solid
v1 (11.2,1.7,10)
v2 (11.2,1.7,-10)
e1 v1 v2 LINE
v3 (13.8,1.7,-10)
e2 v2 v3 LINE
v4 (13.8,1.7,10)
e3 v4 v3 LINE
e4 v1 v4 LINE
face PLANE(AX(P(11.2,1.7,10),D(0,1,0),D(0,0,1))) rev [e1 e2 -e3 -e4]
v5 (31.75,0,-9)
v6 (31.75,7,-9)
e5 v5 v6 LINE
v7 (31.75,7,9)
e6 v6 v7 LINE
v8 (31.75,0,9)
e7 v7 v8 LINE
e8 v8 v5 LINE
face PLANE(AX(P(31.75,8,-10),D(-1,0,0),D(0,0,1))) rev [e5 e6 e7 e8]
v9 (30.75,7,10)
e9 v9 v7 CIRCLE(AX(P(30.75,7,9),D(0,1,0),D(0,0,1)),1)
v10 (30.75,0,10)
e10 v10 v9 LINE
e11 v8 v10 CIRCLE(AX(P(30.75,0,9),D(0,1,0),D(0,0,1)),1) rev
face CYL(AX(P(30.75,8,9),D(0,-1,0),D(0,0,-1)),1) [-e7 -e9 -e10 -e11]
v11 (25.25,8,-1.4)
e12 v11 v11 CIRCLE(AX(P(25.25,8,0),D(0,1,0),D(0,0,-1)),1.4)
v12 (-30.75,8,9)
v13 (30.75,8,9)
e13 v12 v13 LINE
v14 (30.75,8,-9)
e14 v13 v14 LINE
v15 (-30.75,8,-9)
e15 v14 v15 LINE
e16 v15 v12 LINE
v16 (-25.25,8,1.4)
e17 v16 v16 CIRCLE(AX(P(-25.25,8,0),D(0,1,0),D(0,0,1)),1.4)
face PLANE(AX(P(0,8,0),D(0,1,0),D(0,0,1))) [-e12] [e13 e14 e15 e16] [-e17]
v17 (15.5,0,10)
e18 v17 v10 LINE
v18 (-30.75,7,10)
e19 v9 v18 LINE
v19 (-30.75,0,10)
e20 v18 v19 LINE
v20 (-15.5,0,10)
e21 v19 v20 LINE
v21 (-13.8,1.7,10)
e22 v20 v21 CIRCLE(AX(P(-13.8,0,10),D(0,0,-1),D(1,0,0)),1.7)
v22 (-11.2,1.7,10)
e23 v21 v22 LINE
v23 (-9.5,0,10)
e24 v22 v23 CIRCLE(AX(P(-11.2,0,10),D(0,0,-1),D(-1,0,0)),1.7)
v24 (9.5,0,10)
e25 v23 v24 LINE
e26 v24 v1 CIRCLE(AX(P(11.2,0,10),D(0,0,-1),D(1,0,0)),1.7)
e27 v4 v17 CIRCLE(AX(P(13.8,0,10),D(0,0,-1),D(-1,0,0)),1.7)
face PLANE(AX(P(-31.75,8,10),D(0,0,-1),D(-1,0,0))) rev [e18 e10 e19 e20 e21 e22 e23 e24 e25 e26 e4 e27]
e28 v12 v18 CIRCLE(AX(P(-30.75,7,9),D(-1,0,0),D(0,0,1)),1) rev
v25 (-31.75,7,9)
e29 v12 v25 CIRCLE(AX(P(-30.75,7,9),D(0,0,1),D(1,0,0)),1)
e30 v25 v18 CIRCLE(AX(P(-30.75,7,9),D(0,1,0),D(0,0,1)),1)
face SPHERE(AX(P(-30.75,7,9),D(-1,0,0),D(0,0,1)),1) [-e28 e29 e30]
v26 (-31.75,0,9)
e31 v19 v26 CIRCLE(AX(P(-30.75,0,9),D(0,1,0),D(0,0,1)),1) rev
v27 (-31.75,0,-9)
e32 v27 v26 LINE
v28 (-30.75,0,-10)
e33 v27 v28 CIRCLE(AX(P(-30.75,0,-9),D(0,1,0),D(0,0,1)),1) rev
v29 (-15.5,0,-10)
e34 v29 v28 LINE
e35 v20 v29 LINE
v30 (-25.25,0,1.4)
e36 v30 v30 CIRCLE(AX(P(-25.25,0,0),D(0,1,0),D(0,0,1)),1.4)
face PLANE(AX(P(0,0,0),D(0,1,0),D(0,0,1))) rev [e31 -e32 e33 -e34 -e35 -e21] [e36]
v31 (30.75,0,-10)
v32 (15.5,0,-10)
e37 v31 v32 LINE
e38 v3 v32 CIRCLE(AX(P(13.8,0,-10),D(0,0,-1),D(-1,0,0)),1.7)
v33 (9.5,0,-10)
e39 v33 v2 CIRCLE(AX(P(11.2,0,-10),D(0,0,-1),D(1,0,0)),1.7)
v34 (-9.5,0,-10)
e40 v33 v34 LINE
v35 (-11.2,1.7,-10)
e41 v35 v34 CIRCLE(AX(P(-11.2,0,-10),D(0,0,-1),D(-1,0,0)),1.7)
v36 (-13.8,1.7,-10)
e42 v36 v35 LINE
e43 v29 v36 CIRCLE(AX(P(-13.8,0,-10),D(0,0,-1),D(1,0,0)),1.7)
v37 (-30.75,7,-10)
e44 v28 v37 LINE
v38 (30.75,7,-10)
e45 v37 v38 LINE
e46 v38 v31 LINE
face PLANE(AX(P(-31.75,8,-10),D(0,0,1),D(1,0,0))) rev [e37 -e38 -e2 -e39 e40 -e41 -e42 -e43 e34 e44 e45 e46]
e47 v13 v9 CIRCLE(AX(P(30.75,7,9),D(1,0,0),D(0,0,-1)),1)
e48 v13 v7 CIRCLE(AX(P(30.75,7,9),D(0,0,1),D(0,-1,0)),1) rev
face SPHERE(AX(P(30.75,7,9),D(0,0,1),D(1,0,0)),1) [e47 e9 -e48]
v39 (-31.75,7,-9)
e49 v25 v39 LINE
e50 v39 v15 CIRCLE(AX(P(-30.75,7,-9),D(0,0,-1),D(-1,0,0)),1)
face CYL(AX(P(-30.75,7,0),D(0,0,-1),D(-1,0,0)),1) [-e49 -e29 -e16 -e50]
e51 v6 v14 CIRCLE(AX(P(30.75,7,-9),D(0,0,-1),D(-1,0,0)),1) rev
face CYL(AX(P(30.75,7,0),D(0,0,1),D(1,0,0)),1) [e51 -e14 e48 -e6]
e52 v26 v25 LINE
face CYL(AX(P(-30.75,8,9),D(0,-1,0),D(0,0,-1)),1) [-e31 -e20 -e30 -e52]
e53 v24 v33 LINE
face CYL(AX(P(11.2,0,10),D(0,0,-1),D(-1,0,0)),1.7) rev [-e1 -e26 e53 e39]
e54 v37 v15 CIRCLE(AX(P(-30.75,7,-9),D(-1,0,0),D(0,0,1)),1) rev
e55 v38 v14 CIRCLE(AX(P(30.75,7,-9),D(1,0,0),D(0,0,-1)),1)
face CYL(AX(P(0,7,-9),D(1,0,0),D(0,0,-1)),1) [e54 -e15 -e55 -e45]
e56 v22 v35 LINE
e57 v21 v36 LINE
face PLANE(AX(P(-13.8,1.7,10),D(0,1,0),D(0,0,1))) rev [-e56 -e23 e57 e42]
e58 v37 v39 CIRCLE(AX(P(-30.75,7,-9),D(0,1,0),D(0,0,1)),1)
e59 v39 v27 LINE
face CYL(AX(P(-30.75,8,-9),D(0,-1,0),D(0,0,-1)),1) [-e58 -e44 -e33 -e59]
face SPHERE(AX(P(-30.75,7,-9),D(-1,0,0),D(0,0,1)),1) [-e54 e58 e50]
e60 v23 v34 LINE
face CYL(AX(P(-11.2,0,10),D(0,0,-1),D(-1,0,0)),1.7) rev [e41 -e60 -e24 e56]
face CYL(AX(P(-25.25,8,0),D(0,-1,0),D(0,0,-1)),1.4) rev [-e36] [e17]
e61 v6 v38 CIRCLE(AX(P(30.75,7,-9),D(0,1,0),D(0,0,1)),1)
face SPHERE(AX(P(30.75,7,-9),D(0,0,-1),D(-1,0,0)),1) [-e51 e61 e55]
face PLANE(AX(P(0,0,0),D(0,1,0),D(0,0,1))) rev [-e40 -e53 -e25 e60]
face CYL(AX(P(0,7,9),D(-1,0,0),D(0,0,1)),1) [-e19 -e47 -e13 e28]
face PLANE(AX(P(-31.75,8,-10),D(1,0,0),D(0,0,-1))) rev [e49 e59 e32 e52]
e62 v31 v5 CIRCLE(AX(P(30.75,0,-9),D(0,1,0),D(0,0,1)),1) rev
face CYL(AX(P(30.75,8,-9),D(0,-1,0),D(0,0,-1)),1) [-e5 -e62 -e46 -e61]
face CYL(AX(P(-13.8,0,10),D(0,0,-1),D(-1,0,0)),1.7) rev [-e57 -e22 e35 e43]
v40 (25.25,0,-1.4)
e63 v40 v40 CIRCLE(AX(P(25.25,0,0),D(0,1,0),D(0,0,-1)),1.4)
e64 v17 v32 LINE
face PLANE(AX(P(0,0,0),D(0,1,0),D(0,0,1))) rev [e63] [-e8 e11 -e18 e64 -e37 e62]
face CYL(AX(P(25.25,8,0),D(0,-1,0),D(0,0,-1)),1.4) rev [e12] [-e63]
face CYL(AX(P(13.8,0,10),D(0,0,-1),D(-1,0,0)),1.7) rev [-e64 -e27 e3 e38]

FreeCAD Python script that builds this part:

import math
import FreeCAD as App
import Part
import Sketcher
from FreeCAD import Vector
Q = App.Units.Quantity


def edges_at(feature, points):
    """Names of the edges that pass closest to the given points."""
    edges = feature.Shape.Edges
    near = lambda p: min(range(len(edges)), key=lambda i: edges[i].distToShape(Part.Vertex(*p))[0])
    return sorted({f"Edge{near(p) + 1}" for p in points})

doc = App.newDocument("Part")
body = doc.addObject("PartDesign::Body", "Body")

sketch1 = doc.addObject("Sketcher::SketchObject", "Sketch")
body.addObject(sketch1)
sketch1.AttachmentSupport = (doc.XZ_Plane, [""])
sketch1.MapMode = "FlatFace"
sketch1.addGeometry(Part.LineSegment(Vector(-31.8, -10, 0), Vector(-31.8, 10, 0)), False)
sketch1.addGeometry(Part.LineSegment(Vector(-31.8, 10, 0), Vector(31.8, 10, 0)), False)
sketch1.addGeometry(Part.LineSegment(Vector(31.8, 10, 0), Vector(31.8, -10, 0)), False)
sketch1.addGeometry(Part.LineSegment(Vector(31.8, -10, 0), Vector(-31.8, -10, 0)), False)
sketch1.addGeometry(Part.Circle(Vector(-25.2, 0, 0), Vector(0, 0, 1), 1.4), False)
sketch1.addGeometry(Part.Circle(Vector(25.2, 0, 0), Vector(0, 0, 1), 1.4), False)
sketch1.addConstraint(Sketcher.Constraint("Coincident", 0, 2, 1, 1))
sketch1.addConstraint(Sketcher.Constraint("Coincident", 1, 2, 2, 1))
sketch1.addConstraint(Sketcher.Constraint("Coincident", 2, 2, 3, 1))
sketch1.addConstraint(Sketcher.Constraint("Coincident", 3, 2, 0, 1))
sketch1.addConstraint(Sketcher.Constraint("Vertical", 0))
sketch1.addConstraint(Sketcher.Constraint("Horizontal", 1))
sketch1.addConstraint(Sketcher.Constraint("Vertical", 2))
sketch1.addConstraint(Sketcher.Constraint("Horizontal", 3))
sketch1.addConstraint(Sketcher.Constraint("Equal", 4, 5))
sketch1.addConstraint(Sketcher.Constraint("Symmetric", 4, 3, 5, 3, -1, 1))
sketch1.addConstraint(Sketcher.Constraint("Symmetric", 0, 2, 2, 2, -1, 1))
sketch1.addConstraint(Sketcher.Constraint("PointOnObject", 4, 3, -1))
sketch1.addConstraint(Sketcher.Constraint("Diameter", 4, Q("2.8 mm")))
sketch1.addConstraint(Sketcher.Constraint("DistanceY", 0, 1, 0, 2, Q("20 mm")))
sketch1.addConstraint(Sketcher.Constraint("DistanceX", 1, 1, 1, 2, Q("63.5 mm")))
sketch1.addConstraint(Sketcher.Constraint("DistanceX", 0, 2, 5, 3, Q("57 mm")))
pad1 = doc.addObject("PartDesign::Pad", "Pad")
body.addObject(pad1)
pad1.Profile = sketch1
pad1.Length = 8
pad1.Reversed = True

sketch2 = doc.addObject("Sketcher::SketchObject", "Sketch001")
body.addObject(sketch2)
sketch2.AttachmentSupport = (doc.XY_Plane, [""])
sketch2.MapMode = "FlatFace"
sketch2.AttachmentOffset = App.Placement(Vector(0, 0, -10), App.Rotation())
sketch2.addGeometry(Part.LineSegment(Vector(-9.5, 0, 0), Vector(-15.5, 0, 0)), False)
sketch2.addGeometry(Part.ArcOfCircle(Part.Circle(Vector(-13.8, 0, 0), Vector(0, 0, 1), 1.7), math.radians(90), math.radians(180)), False)
sketch2.addGeometry(Part.LineSegment(Vector(-13.8, 1.7, 0), Vector(-11.2, 1.7, 0)), False)
sketch2.addGeometry(Part.ArcOfCircle(Part.Circle(Vector(-11.2, 0, 0), Vector(0, 0, 1), 1.7), math.radians(0), math.radians(90)), False)
sketch2.addGeometry(Part.LineSegment(Vector(15.5, 0, 0), Vector(9.5, 0, 0)), False)
sketch2.addGeometry(Part.ArcOfCircle(Part.Circle(Vector(11.2, 0, 0), Vector(0, 0, 1), 1.7), math.radians(90), math.radians(180)), False)
sketch2.addGeometry(Part.LineSegment(Vector(11.2, 1.7, 0), Vector(13.8, 1.7, 0)), False)
sketch2.addGeometry(Part.ArcOfCircle(Part.Circle(Vector(13.8, 0, 0), Vector(0, 0, 1), 1.7), math.radians(0), math.radians(90)), False)
sketch2.addConstraint(Sketcher.Constraint("Coincident", 0, 2, 1, 2))
sketch2.addConstraint(Sketcher.Constraint("Tangent", 1, 1, 2, 1))
sketch2.addConstraint(Sketcher.Constraint("Tangent", 2, 2, 3, 2))
sketch2.addConstraint(Sketcher.Constraint("Coincident", 3, 1, 0, 1))
sketch2.addConstraint(Sketcher.Constraint("Coincident", 4, 2, 5, 2))
sketch2.addConstraint(Sketcher.Constraint("Tangent", 5, 1, 6, 1))
sketch2.addConstraint(Sketcher.Constraint("Tangent", 6, 2, 7, 2))
sketch2.addConstraint(Sketcher.Constraint("Coincident", 7, 1, 4, 1))
sketch2.addConstraint(Sketcher.Constraint("Horizontal", 0))
sketch2.addConstraint(Sketcher.Constraint("Horizontal", 2))
sketch2.addConstraint(Sketcher.Constraint("Horizontal", 4))
sketch2.addConstraint(Sketcher.Constraint("Horizontal", 6))
sketch2.addConstraint(Sketcher.Constraint("Equal", 1, 3))
sketch2.addConstraint(Sketcher.Constraint("Equal", 3, 5))
sketch2.addConstraint(Sketcher.Constraint("Equal", 5, 7))
sketch2.addConstraint(Sketcher.Constraint("Symmetric", 3, 3, 5, 3, -1, 1))
sketch2.addConstraint(Sketcher.Constraint("Symmetric", 0, 2, 7, 1, -1, 1))
sketch2.addConstraint(Sketcher.Constraint("PointOnObject", 1, 3, -1))
sketch2.addConstraint(Sketcher.Constraint("PointOnObject", 0, 2, -1))
sketch2.addConstraint(Sketcher.Constraint("Radius", 1, Q("1.7 mm")))
sketch2.addConstraint(Sketcher.Constraint("DistanceX", 0, 2, 0, 1, Q("6 mm")))
sketch2.addConstraint(Sketcher.Constraint("DistanceX", 1, 3, 5, 3, Q("25 mm")))
pocket1 = doc.addObject("PartDesign::Pocket", "Pocket")
body.addObject(pocket1)
pocket1.Profile = sketch2
pocket1.Type = "ThroughAll"
pocket1.Reversed = True
doc.recompute()

fillet = doc.addObject("PartDesign::Fillet", "Fillet")
body.addObject(fillet)
fillet.Base = (pocket1, edges_at(pocket1, [
    (31.75, 8, 0),
    (0, 8, -10),
    (-31.75, 8, 0),
    (-31.75, 4, -10),
    (31.75, 4, -10),
    (31.75, 4, 10),
    (-31.75, 4, 10),
    (0, 8, 10),
]))
fillet.Radius = 1

doc.recompute()
